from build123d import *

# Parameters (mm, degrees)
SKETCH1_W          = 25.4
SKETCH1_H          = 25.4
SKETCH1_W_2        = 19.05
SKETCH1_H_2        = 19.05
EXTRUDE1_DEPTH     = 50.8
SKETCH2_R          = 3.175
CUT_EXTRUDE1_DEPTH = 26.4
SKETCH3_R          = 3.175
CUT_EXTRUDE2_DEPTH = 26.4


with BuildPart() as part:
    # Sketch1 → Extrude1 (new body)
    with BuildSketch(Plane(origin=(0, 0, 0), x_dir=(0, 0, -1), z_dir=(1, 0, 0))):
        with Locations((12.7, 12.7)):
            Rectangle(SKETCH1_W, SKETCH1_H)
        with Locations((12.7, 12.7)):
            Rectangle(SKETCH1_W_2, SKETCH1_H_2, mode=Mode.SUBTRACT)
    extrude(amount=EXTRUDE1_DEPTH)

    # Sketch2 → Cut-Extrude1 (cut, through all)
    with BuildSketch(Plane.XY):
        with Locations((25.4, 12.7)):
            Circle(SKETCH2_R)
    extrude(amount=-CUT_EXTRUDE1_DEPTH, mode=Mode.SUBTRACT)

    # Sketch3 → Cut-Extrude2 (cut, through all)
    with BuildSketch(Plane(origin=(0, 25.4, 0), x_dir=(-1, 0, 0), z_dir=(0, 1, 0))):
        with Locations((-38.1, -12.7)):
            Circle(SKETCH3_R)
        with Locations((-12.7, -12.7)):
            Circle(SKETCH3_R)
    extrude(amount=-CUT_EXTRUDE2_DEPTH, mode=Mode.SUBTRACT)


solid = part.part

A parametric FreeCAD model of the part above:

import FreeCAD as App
import Part
import Sketcher
Q = App.Units.Quantity


def add_polygon(sketch, points):
    """Adds a closed chain of lines whose ends are joined by coincident constraints."""
    first, n = sketch.GeometryCount, len(points)
    for a, b in zip(points, points[1:] + points[:1]):
        sketch.addGeometry(Part.LineSegment(App.Vector(*a, 0), App.Vector(*b, 0)), False)
    for i in range(n):
        sketch.addConstraint(Sketcher.Constraint("Coincident", first + i, 2, first + (i + 1) % n, 1))

doc = App.newDocument("Part")
body = doc.addObject("PartDesign::Body", "Body")

# Sketch on YZ plane
sketch1 = body.newObject("Sketcher::SketchObject", "Sketch")
sketch1.AttachmentSupport = (doc.getObject("YZ_Plane"), [""])
sketch1.MapMode = "FlatFace"
add_polygon(sketch1, [(25, 0), (0, 0), (0, -25), (25, -25)])  # lines 0-3
add_polygon(sketch1, [(3, -22), (3, -3), (22, -3), (22, -22)])  # lines 4-7
sketch1.addConstraint(Sketcher.Constraint("Horizontal", 0))
sketch1.addConstraint(Sketcher.Constraint("Vertical", 1))
sketch1.addConstraint(Sketcher.Constraint("Horizontal", 2))
sketch1.addConstraint(Sketcher.Constraint("Vertical", 3))
sketch1.addConstraint(Sketcher.Constraint("Vertical", 4))
sketch1.addConstraint(Sketcher.Constraint("Horizontal", 5))
sketch1.addConstraint(Sketcher.Constraint("Vertical", 6))
sketch1.addConstraint(Sketcher.Constraint("Horizontal", 7))
sketch1.addConstraint(Sketcher.Constraint("Coincident", 0, 2, -1, 1))
sketch1.addConstraint(Sketcher.Constraint("Equal", 2, 1))
sketch1.addConstraint(Sketcher.Constraint("Equal", 7, 4))
sketch1.addConstraint(Sketcher.Constraint("DistanceX", 0, 2, 0, 1, Q("1 in")))
sketch1.addConstraint(Sketcher.Constraint("DistanceX", 5, 1, 5, 2, Q("0.75 in")))
sketch1.addConstraint(Sketcher.Constraint("DistanceX", -1, 1, 4, 2, Q("0.125 in")))
sketch1.addConstraint(Sketcher.Constraint("DistanceY", 4, 2, -1, 1, Q("0.125 in")))
pad1 = body.newObject("PartDesign::Pad", "Pad")
pad1.Profile = sketch1
pad1.Length = Q("2 in")

# Sketch on XY plane
sketch2 = body.newObject("Sketcher::SketchObject", "Sketch001")
sketch2.AttachmentSupport = (doc.getObject("XY_Plane"), [""])
sketch2.MapMode = "FlatFace"
sketch2.addGeometry(Part.Circle(App.Vector(25.4, 12.7, 0), App.Vector(0, 0, 1), 3.2), False)
sketch2.addConstraint(Sketcher.Constraint("Diameter", 0, Q("0.25 in")))
sketch2.addConstraint(Sketcher.Constraint("DistanceX", -1, 1, 0, 3, Q("1 in")))
sketch2.addConstraint(Sketcher.Constraint("DistanceY", -1, 1, 0, 3, Q("0.5 in")))
pocket1 = body.newObject("PartDesign::Pocket", "Pocket")
pocket1.Profile = sketch2
pocket1.Type = "ThroughAll"

# Sketch on XZ plane
sketch3 = body.newObject("Sketcher::SketchObject", "Sketch002")
sketch3.AttachmentSupport = (doc.getObject("XZ_Plane"), [""])
sketch3.MapMode = "FlatFace"
sketch3.AttachmentOffset = App.Placement(App.Vector(0, 0, -1 * 25.4), App.Rotation())
sketch3.addGeometry(Part.Circle(App.Vector(38.1, -12.7, 0), App.Vector(0, 0, 1), 3.2), False)
sketch3.addGeometry(Part.Circle(App.Vector(12.7, -12.7, 0), App.Vector(0, 0, 1), 3.2), False)
sketch3.addConstraint(Sketcher.Constraint("Equal", 0, 1))
sketch3.addConstraint(Sketcher.Constraint("Horizontal", 0, 3, 1, 3))
sketch3.addConstraint(Sketcher.Constraint("Diameter", 0, Q("0.25 in")))
sketch3.addConstraint(Sketcher.Constraint("DistanceX", 1, 3, 0, 3, Q("1 in")))
sketch3.addConstraint(Sketcher.Constraint("DistanceX", -1, 1, 0, 3, Q("1.5 in")))
sketch3.addConstraint(Sketcher.Constraint("DistanceY", 0, 3, -1, 1, Q("0.5 in")))
pocket2 = body.newObject("PartDesign::Pocket", "Pocket001")
pocket2.Profile = sketch3
pocket2.Type = "ThroughAll"
pocket2.Reversed = True

doc.recompute()
